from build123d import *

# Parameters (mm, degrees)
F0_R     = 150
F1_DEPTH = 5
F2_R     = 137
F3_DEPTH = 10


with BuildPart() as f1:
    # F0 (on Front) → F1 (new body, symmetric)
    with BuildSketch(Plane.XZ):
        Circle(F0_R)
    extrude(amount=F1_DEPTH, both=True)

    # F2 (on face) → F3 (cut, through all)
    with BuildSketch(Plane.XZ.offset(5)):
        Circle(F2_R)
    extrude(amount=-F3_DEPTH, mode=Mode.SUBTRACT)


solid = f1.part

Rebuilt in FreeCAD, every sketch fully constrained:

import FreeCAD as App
import Part
import Sketcher
from FreeCAD import Vector

doc = App.newDocument("Part")
params = doc.addObject("Spreadsheet::Sheet", "Params")
for row, (alias, value) in enumerate([
    ("sketch1_diameter", "300 mm"),
    ("pad1_length", "10 mm"),
    ("sketch2_diameter", "274 mm"),
], start=1):
    params.set(f"A{row}", alias)
    params.set(f"B{row}", "=" + value)
    params.setAlias(f"B{row}", alias)

body = doc.addObject("PartDesign::Body", "Body")

# Sketch on XZ plane
sketch1 = body.newObject("Sketcher::SketchObject", "Sketch")
sketch1.AttachmentSupport = (doc.getObject("XZ_Plane"), [""])
sketch1.MapMode = "FlatFace"
sketch1.addGeometry(Part.Circle(Vector(0, 0, 0), Vector(0, 0, 1), 150), False)
sketch1.addConstraint([
    Sketcher.Constraint("Coincident", 0, 3, -1, 1),
    Sketcher.Constraint("Diameter", 0, 300.0),
])
sketch1.setExpression("Constraints[1]", "Params.sketch1_diameter")
pad1 = body.newObject("PartDesign::Pad", "Pad")
pad1.Profile = sketch1
pad1.setExpression("Length", "Params.pad1_length")
pad1.Midplane = True

# Sketch on XZ plane
sketch2 = body.newObject("Sketcher::SketchObject", "Sketch001")
sketch2.AttachmentSupport = (doc.getObject("XZ_Plane"), [""])
sketch2.MapMode = "FlatFace"
sketch2.AttachmentOffset = App.Placement(Vector(0, 0, 5), App.Rotation())
sketch2.addGeometry(Part.Circle(Vector(0, 0, 0), Vector(0, 0, 1), 137), False)
sketch2.addConstraint([
    Sketcher.Constraint("Coincident", 0, 3, -1, 1),
    Sketcher.Constraint("Diameter", 0, 274.0),
])
sketch2.setExpression("Constraints[1]", "Params.sketch2_diameter")
pocket1 = body.newObject("PartDesign::Pocket", "Pocket")
pocket1.Profile = sketch2
pocket1.Type = "ThroughAll"

doc.recompute()
